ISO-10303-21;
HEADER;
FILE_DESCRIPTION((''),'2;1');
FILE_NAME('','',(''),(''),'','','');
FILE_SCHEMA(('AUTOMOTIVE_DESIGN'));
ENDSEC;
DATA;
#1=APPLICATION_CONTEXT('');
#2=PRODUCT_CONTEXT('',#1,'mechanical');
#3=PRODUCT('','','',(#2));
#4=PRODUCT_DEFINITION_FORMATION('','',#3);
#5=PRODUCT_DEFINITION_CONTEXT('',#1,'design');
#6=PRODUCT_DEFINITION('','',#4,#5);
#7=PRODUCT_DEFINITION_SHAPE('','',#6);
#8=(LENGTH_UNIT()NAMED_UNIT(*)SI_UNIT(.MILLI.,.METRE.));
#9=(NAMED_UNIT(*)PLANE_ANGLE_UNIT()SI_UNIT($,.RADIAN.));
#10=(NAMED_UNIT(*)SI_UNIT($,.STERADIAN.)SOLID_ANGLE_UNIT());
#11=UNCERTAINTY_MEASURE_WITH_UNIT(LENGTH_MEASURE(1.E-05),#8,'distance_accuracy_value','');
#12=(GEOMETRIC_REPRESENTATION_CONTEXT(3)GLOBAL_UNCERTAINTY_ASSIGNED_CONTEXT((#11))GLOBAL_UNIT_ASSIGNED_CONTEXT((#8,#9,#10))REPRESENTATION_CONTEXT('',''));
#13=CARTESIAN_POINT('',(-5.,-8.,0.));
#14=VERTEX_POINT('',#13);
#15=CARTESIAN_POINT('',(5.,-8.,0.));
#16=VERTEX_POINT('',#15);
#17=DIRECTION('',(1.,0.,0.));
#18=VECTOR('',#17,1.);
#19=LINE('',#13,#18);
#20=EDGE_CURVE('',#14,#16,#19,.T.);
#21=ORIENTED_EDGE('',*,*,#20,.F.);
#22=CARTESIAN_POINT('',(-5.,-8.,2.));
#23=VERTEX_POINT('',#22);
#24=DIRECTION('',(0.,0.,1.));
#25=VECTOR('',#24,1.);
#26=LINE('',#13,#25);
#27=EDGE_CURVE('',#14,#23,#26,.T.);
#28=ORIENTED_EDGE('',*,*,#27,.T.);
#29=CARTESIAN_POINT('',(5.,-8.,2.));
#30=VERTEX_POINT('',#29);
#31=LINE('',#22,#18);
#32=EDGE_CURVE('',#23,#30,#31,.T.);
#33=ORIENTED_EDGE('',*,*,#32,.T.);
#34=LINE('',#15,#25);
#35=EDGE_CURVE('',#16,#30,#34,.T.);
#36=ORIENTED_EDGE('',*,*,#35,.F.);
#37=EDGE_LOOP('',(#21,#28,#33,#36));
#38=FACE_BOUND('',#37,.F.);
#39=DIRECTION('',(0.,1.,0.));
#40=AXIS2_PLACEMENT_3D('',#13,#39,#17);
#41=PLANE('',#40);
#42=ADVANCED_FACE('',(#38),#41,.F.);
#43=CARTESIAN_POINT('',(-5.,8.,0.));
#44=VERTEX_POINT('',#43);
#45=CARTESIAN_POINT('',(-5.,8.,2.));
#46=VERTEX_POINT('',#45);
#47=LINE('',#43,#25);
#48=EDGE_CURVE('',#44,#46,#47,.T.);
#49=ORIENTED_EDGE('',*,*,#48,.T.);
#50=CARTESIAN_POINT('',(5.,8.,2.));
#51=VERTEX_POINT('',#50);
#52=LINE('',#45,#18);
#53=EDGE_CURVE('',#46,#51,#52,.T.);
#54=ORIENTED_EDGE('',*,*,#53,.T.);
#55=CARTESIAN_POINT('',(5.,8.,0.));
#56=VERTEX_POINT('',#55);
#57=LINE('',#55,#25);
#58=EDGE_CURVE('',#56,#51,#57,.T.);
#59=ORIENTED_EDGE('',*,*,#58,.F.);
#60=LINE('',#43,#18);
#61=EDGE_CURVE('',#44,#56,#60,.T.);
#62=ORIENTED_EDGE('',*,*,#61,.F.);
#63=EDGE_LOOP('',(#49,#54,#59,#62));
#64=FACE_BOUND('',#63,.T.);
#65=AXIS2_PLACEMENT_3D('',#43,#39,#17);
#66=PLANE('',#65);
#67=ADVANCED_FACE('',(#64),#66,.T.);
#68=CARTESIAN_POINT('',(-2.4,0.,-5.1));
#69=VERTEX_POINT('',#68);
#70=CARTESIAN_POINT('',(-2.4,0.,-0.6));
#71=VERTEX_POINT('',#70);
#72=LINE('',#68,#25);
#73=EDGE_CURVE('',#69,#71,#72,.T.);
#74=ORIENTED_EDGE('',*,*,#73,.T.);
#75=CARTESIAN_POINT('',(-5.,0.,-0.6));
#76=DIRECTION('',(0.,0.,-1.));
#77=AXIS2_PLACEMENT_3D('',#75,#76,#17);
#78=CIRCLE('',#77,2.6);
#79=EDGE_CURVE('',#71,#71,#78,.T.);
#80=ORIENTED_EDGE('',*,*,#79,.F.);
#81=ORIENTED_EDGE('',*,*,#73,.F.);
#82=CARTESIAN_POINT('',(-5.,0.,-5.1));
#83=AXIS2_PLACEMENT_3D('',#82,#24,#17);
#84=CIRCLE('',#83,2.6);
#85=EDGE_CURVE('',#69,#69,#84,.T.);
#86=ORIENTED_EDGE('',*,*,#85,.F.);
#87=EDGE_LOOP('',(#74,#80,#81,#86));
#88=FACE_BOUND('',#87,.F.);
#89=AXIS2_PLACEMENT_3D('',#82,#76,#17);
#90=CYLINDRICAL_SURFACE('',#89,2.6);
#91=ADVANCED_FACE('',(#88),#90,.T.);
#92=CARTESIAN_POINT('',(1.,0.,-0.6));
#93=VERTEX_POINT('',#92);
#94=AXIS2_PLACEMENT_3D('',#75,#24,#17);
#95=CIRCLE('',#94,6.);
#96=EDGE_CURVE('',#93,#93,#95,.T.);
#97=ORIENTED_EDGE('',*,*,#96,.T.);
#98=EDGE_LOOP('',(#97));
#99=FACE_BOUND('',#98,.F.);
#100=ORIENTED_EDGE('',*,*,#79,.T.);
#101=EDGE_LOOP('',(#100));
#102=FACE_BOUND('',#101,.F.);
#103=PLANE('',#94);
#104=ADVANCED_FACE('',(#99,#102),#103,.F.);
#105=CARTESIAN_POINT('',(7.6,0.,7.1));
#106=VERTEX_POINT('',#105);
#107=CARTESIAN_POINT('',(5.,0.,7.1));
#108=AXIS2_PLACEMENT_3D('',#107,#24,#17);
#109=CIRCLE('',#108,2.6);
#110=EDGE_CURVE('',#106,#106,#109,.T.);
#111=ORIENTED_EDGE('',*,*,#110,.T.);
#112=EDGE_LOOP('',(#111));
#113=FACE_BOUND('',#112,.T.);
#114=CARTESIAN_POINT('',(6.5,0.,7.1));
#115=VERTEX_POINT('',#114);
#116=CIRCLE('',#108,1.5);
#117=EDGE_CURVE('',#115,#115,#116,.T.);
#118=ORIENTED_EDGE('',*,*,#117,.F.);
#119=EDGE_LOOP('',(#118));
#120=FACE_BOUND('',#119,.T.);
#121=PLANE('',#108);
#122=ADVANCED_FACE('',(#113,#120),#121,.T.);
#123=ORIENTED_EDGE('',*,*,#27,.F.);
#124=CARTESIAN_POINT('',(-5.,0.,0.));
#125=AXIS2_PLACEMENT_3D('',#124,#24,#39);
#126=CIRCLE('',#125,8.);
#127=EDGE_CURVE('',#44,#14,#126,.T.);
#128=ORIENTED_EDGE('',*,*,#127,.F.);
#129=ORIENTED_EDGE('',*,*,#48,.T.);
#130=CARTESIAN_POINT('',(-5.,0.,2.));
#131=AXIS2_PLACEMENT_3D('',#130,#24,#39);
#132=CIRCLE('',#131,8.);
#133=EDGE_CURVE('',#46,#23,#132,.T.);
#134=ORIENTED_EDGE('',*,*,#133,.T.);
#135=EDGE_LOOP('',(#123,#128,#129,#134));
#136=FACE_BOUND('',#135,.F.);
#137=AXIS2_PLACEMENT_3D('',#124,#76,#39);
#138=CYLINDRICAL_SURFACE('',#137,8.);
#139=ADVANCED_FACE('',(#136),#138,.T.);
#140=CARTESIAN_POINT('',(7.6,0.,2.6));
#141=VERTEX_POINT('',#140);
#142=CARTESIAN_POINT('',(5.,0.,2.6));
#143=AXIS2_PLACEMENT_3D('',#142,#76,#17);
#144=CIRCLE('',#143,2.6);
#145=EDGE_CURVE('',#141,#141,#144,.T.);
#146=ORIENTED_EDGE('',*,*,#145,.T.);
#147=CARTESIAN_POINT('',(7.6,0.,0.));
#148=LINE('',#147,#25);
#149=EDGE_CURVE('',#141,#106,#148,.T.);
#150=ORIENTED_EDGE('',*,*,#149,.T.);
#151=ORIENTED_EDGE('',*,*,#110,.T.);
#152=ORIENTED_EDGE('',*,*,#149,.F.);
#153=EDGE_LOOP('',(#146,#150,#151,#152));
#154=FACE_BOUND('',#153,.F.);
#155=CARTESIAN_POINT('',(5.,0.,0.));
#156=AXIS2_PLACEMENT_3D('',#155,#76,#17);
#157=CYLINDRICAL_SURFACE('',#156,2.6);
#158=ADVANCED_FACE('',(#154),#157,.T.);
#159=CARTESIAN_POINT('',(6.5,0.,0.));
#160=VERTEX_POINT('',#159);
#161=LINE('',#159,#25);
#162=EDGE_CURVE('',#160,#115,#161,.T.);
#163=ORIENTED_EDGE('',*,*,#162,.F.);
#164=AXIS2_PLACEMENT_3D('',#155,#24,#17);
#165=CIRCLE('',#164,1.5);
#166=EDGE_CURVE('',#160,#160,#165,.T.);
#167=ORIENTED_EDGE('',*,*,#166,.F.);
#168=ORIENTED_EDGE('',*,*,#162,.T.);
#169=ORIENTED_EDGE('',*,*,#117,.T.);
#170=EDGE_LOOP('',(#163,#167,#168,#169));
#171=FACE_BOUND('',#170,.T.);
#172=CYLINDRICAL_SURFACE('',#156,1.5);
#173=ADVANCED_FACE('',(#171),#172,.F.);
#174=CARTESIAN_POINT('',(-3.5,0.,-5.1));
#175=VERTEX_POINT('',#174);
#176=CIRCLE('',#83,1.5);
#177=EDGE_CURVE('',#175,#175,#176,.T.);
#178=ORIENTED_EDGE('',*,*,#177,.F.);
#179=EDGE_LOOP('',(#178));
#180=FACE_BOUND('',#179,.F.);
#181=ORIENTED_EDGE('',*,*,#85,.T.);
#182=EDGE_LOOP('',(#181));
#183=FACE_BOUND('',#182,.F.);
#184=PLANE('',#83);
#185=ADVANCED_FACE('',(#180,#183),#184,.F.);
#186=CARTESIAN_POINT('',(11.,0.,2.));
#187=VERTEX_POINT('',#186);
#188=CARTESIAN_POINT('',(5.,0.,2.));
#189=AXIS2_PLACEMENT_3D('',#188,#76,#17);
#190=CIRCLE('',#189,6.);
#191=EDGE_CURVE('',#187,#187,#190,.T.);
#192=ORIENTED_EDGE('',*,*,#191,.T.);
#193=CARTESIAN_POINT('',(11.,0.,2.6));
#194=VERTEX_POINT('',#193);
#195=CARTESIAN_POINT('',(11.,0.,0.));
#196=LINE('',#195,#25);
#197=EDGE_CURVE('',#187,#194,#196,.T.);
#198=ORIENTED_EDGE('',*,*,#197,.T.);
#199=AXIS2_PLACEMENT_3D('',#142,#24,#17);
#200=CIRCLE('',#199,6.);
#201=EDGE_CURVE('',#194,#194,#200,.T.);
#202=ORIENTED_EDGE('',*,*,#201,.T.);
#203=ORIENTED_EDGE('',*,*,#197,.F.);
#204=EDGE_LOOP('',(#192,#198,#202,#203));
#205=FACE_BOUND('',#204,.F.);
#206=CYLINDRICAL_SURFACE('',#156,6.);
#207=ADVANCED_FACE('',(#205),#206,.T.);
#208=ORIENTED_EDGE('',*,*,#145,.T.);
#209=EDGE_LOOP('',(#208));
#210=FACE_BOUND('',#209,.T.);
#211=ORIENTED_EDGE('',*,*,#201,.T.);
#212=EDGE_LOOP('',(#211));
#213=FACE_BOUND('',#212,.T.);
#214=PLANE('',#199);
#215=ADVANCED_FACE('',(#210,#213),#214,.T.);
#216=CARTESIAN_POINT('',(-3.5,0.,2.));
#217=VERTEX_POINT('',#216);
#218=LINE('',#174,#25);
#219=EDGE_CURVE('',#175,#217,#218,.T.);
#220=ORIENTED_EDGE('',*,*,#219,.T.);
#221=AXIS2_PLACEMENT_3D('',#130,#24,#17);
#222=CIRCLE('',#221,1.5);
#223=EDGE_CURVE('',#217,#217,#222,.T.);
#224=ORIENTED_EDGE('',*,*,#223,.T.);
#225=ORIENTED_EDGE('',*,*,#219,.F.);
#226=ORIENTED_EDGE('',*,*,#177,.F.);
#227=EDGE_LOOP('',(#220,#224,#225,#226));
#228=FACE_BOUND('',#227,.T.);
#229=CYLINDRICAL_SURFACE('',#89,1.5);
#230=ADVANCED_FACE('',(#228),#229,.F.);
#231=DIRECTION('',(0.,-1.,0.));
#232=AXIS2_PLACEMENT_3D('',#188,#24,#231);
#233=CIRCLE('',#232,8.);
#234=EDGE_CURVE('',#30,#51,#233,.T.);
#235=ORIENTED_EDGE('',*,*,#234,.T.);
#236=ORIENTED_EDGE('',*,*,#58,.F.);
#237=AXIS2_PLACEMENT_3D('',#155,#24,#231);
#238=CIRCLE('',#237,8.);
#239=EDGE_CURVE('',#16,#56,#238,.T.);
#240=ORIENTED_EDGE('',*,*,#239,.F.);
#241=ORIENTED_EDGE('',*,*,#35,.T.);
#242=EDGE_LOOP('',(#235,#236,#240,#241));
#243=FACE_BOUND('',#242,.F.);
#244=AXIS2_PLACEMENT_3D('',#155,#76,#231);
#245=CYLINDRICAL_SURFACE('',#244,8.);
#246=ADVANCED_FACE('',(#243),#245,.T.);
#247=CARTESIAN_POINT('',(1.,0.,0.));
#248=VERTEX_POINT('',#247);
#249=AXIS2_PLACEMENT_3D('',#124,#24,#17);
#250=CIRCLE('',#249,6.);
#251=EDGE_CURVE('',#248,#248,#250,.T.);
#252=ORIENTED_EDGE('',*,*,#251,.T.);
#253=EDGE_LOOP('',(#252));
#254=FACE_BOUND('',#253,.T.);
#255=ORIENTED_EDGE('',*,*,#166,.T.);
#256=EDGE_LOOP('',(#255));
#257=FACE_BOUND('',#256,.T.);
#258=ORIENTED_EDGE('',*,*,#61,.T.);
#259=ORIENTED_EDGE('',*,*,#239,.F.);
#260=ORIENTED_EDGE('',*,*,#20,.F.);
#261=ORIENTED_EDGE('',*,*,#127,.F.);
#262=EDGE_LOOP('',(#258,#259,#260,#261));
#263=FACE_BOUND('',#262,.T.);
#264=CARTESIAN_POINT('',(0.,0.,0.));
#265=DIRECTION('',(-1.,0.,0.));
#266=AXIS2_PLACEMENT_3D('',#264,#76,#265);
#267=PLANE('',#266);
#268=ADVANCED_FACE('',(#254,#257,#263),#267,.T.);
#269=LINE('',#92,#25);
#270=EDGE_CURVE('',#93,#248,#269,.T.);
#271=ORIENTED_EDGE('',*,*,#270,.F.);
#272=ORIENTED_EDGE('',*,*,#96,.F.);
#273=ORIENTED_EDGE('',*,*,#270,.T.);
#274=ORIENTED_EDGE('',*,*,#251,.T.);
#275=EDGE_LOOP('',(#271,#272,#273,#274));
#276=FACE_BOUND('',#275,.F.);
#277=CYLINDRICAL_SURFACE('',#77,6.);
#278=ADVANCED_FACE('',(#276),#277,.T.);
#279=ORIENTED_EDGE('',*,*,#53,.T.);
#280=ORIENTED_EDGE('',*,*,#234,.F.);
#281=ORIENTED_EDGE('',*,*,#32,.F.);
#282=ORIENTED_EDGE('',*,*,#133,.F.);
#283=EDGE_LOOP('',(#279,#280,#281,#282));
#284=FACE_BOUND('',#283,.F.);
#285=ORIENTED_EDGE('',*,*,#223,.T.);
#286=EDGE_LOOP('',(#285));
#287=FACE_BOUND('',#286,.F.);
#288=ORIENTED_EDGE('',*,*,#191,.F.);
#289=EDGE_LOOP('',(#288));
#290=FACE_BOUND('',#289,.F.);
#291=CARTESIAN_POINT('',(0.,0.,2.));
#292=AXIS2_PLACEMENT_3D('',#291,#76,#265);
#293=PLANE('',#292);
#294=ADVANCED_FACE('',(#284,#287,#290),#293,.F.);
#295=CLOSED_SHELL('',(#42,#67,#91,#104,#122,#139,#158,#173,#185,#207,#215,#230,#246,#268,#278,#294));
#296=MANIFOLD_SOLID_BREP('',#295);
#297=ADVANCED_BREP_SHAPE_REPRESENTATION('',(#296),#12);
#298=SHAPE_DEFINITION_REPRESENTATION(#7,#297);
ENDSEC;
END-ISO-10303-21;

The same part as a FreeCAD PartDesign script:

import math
import FreeCAD as App
import Part
import Sketcher
from FreeCAD import Vector

doc = App.newDocument("Part")
body = doc.addObject("PartDesign::Body", "Body")

# Sketch on XY plane
sketch1 = body.newObject("Sketcher::SketchObject", "Sketch")
sketch1.AttachmentSupport = (doc.getObject("XY_Plane"), [""])
sketch1.MapMode = "FlatFace"
sketch1.AttachmentOffset = App.Placement(Vector(0, 0, -5.1), App.Rotation())
sketch1.addGeometry(Part.Circle(Vector(-5, 0, 0), Vector(0, 0, 1), 1.5), False)
sketch1.addConstraint(Sketcher.Constraint("PointOnObject", 0, 3, -1))
sketch1.addConstraint(Sketcher.Constraint("Diameter", 0, 3.0))
sketch1.addConstraint(Sketcher.Constraint("DistanceX", 0, 3, -1, 1, 5.0))
pad1 = body.newObject("PartDesign::Pad", "Pad")
pad1.Profile = sketch1
pad1.Length = 7.1
body2 = doc.addObject("PartDesign::Body", "Body001")
body2.AllowCompound = True

# Sketch on XY plane
sketch2 = body2.newObject("Sketcher::SketchObject", "Sketch001")
sketch2.AttachmentSupport = (doc.getObject("XY_Plane001"), [""])
sketch2.MapMode = "FlatFace"
sketch2.addGeometry(Part.Circle(Vector(5, 0, 0), Vector(0, 0, 1), 1.5), False)
sketch2.addConstraint(Sketcher.Constraint("PointOnObject", 0, 3, -1))
sketch2.addConstraint(Sketcher.Constraint("Diameter", 0, 3.0))
sketch2.addConstraint(Sketcher.Constraint("DistanceX", -1, 1, 0, 3, 5.0))
pad2 = body2.newObject("PartDesign::Pad", "Pad001")
pad2.Profile = sketch2
pad2.Length = 7.1
doc.recompute()

boolean = body2.newObject("PartDesign::Boolean", "Boolean")
boolean.Type = "Fuse"
boolean.addObjects([body])
body3 = doc.addObject("PartDesign::Body", "Body002")

# Sketch on XY plane
sketch3 = body3.newObject("Sketcher::SketchObject", "Sketch002")
sketch3.AttachmentSupport = (doc.getObject("XY_Plane002"), [""])
sketch3.MapMode = "FlatFace"
sketch3.AttachmentOffset = App.Placement(Vector(0, 0, -0.6), App.Rotation())
sketch3.addGeometry(Part.Circle(Vector(-5, 0, 0), Vector(0, 0, 1), 6), False)
sketch3.addConstraint(Sketcher.Constraint("PointOnObject", 0, 3, -1))
sketch3.addConstraint(Sketcher.Constraint("Diameter", 0, 12.0))
sketch3.addConstraint(Sketcher.Constraint("DistanceX", 0, 3, -1, 1, 5.0))
pad3 = body3.newObject("PartDesign::Pad", "Pad002")
pad3.Profile = sketch3
pad3.Length = 2.6
body4 = doc.addObject("PartDesign::Body", "Body003")

# Sketch on XY plane
sketch4 = body4.newObject("Sketcher::SketchObject", "Sketch003")
sketch4.AttachmentSupport = (doc.getObject("XY_Plane003"), [""])
sketch4.MapMode = "FlatFace"
sketch4.addGeometry(Part.Circle(Vector(5, 0, 0), Vector(0, 0, 1), 2.6), False)
sketch4.addConstraint(Sketcher.Constraint("PointOnObject", 0, 3, -1))
sketch4.addConstraint(Sketcher.Constraint("Diameter", 0, 5.2))
sketch4.addConstraint(Sketcher.Constraint("DistanceX", -1, 1, 0, 3, 5.0))
pad4 = body4.newObject("PartDesign::Pad", "Pad003")
pad4.Profile = sketch4
pad4.Length = 7.1
body5 = doc.addObject("PartDesign::Body", "Body004")

# Sketch on XY plane
sketch5 = body5.newObject("Sketcher::SketchObject", "Sketch004")
sketch5.AttachmentSupport = (doc.getObject("XY_Plane004"), [""])
sketch5.MapMode = "FlatFace"
sketch5.AttachmentOffset = App.Placement(Vector(0, 0, -5.1), App.Rotation())
sketch5.addGeometry(Part.Circle(Vector(-5, 0, 0), Vector(0, 0, 1), 2.6), False)
sketch5.addConstraint(Sketcher.Constraint("PointOnObject", 0, 3, -1))
sketch5.addConstraint(Sketcher.Constraint("Diameter", 0, 5.2))
sketch5.addConstraint(Sketcher.Constraint("DistanceX", 0, 3, -1, 1, 5.0))
pad5 = body5.newObject("PartDesign::Pad", "Pad004")
pad5.Profile = sketch5
pad5.Length = 7.1
body6 = doc.addObject("PartDesign::Body", "Body005")

# Sketch on XY plane
sketch6 = body6.newObject("Sketcher::SketchObject", "Sketch005")
sketch6.AttachmentSupport = (doc.getObject("XY_Plane005"), [""])
sketch6.MapMode = "FlatFace"
sketch6.addGeometry(Part.LineSegment(Vector(5, 8, 0), Vector(-5, 8, 0)), False)
sketch6.addGeometry(Part.ArcOfCircle(Part.Circle(Vector(-5, 0, 0), Vector(0, 0, 1), 8), math.radians(90), math.radians(270)), False)
sketch6.addGeometry(Part.LineSegment(Vector(-5, -8, 0), Vector(5, -8, 0)), False)
sketch6.addGeometry(Part.ArcOfCircle(Part.Circle(Vector(5, 0, 0), Vector(0, 0, 1), 8), math.radians(-90), math.radians(90)), False)
sketch6.addConstraint(Sketcher.Constraint("Tangent", 0, 2, 1, 1))
sketch6.addConstraint(Sketcher.Constraint("Tangent", 1, 2, 2, 1))
sketch6.addConstraint(Sketcher.Constraint("Tangent", 2, 2, 3, 1))
sketch6.addConstraint(Sketcher.Constraint("Tangent", 3, 2, 0, 1))
sketch6.addConstraint(Sketcher.Constraint("Horizontal", 0))
sketch6.addConstraint(Sketcher.Constraint("Horizontal", 2))
sketch6.addConstraint(Sketcher.Constraint("Symmetric", 1, 3, 3, 3, -1, 1))
sketch6.addConstraint(Sketcher.Constraint("Radius", 1, 8.0))
sketch6.addConstraint(Sketcher.Constraint("DistanceX", 0, 2, 0, 1, 10.0))
pad6 = body6.newObject("PartDesign::Pad", "Pad005")
pad6.Profile = sketch6
pad6.Length = 2
body7 = doc.addObject("PartDesign::Body", "Body006")

# Sketch on XY plane
sketch7 = body7.newObject("Sketcher::SketchObject", "Sketch006")
sketch7.AttachmentSupport = (doc.getObject("XY_Plane006"), [""])
sketch7.MapMode = "FlatFace"
sketch7.addGeometry(Part.Circle(Vector(5, 0, 0), Vector(0, 0, 1), 6), False)
sketch7.addConstraint(Sketcher.Constraint("PointOnObject", 0, 3, -1))
sketch7.addConstraint(Sketcher.Constraint("Diameter", 0, 12.0))
sketch7.addConstraint(Sketcher.Constraint("DistanceX", -1, 1, 0, 3, 5.0))
pad7 = body7.newObject("PartDesign::Pad", "Pad006")
pad7.Profile = sketch7
pad7.Length = 2.6
doc.recompute()

boolean2 = body7.newObject("PartDesign::Boolean", "Boolean001")
boolean2.Type = "Fuse"
boolean2.addObjects([body3])
doc.recompute()

boolean3 = body7.newObject("PartDesign::Boolean", "Boolean002")
boolean3.Type = "Fuse"
boolean3.addObjects([body4])
doc.recompute()

boolean4 = body7.newObject("PartDesign::Boolean", "Boolean003")
boolean4.Type = "Fuse"
boolean4.addObjects([body5])
doc.recompute()

boolean5 = body7.newObject("PartDesign::Boolean", "Boolean004")
boolean5.Type = "Fuse"
boolean5.addObjects([body6])
doc.recompute()

boolean6 = body7.newObject("PartDesign::Boolean", "Boolean005")
boolean6.Type = "Cut"
boolean6.addObjects([body2])

doc.recompute()
